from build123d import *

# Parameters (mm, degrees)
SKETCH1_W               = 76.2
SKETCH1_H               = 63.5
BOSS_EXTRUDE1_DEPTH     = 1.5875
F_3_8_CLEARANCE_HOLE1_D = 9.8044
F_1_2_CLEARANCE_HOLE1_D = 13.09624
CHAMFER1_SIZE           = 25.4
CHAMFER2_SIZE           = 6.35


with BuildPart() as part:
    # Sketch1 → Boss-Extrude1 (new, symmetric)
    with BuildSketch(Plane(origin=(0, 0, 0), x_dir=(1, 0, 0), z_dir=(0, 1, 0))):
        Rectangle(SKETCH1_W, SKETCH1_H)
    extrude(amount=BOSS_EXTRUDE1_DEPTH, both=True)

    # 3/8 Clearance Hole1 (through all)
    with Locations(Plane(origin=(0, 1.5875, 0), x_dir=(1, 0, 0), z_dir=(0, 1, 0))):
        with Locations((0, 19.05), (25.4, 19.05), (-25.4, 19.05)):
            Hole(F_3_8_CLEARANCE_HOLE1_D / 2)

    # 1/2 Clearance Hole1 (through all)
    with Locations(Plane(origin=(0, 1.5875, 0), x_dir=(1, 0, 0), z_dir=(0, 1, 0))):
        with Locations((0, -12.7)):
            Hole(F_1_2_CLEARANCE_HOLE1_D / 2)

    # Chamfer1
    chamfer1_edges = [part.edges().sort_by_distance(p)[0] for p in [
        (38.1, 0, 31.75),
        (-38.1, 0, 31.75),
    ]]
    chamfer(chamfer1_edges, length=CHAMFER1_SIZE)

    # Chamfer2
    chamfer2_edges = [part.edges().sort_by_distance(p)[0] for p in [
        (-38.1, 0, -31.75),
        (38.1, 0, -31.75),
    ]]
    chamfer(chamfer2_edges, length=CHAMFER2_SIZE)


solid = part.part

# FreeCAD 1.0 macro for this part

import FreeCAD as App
import Part
import Sketcher

V = App.Vector
Q = App.Units.Quantity


def edges_at(feature, points):
    """Names of the edges that pass closest to the given points."""
    edges = feature.Shape.Edges
    near = lambda p: min(range(len(edges)), key=lambda i: edges[i].distToShape(Part.Vertex(*p))[0])
    return sorted({f"Edge{near(p) + 1}" for p in points})

doc = App.newDocument("Part")
body = doc.addObject("PartDesign::Body", "Body")

# Sketch on XZ plane
sketch1 = body.newObject("Sketcher::SketchObject", "Sketch")
sketch1.AttachmentSupport = (doc.getObject("XZ_Plane"), [""])
sketch1.MapMode = "FlatFace"
sketch1.addGeometry([
    Part.LineSegment(V(-38, -32, 0), V(-38, 32, 0)),
    Part.LineSegment(V(-38, 32, 0), V(38, 32, 0)),
    Part.LineSegment(V(38, 32, 0), V(38, -32, 0)),
    Part.LineSegment(V(38, -32, 0), V(-38, -32, 0)),
], False)
sketch1.addConstraint([
    Sketcher.Constraint("Coincident", 0, 2, 1, 1),
    Sketcher.Constraint("Coincident", 1, 2, 2, 1),
    Sketcher.Constraint("Coincident", 2, 2, 3, 1),
    Sketcher.Constraint("Coincident", 3, 2, 0, 1),
    Sketcher.Constraint("Vertical", 0),
    Sketcher.Constraint("Horizontal", 1),
    Sketcher.Constraint("Vertical", 2),
    Sketcher.Constraint("Horizontal", 3),
    Sketcher.Constraint("Symmetric", 0, 2, 2, 2, -1, 1),
    Sketcher.Constraint("DistanceX", 1, 1, 1, 2, Q("3 in")),
    Sketcher.Constraint("DistanceY", 0, 1, 0, 2, Q("2.5 in")),
])
pad1 = body.newObject("PartDesign::Pad", "Pad")
pad1.Profile = sketch1
pad1.Length = Q("0.125 in")
pad1.Midplane = True

# Sketch on XZ plane
sketch2 = body.newObject("Sketcher::SketchObject", "Sketch001")
sketch2.AttachmentSupport = (doc.getObject("XZ_Plane"), [""])
sketch2.MapMode = "FlatFace"
sketch2.AttachmentOffset = App.Placement(V(0, 0, -0.0625 * 25.4), App.Rotation())
sketch2.addGeometry([
    Part.Circle(V(0, -19.1, 0), V(0, 0, 1), 4.9),
    Part.Circle(V(25.4, -19.1, 0), V(0, 0, 1), 4.9),
    Part.Circle(V(-25.4, -19.1, 0), V(0, 0, 1), 4.9),
], False)
sketch2.addConstraint([
    Sketcher.Constraint("Equal", 0, 1),
    Sketcher.Constraint("Equal", 1, 2),
    Sketcher.Constraint("Symmetric", 1, 3, 2, 3, -2),
    Sketcher.Constraint("PointOnObject", 0, 3, -2),
    Sketcher.Constraint("Horizontal", 0, 3, 1, 3),
    Sketcher.Constraint("Diameter", 0, Q("0.386 in")),
    Sketcher.Constraint("DistanceX", -1, 1, 1, 3, Q("1 in")),
    Sketcher.Constraint("DistanceY", 0, 3, -1, 1, Q("0.75 in")),
])
doc.recompute()
hole = body.newObject("PartDesign::Hole", "Hole")
hole.Profile = sketch2
hole.ThreadType = "None"
hole.Diameter = Q("0.386 in")
hole.DepthType = "ThroughAll"
hole.Reversed = True

# Sketch on XZ plane
sketch3 = body.newObject("Sketcher::SketchObject", "Sketch002")
sketch3.AttachmentSupport = (doc.getObject("XZ_Plane"), [""])
sketch3.MapMode = "FlatFace"
sketch3.AttachmentOffset = App.Placement(V(0, 0, -0.0625 * 25.4), App.Rotation())
sketch3.addGeometry(Part.Circle(V(0, 13, 0), V(0, 0, 1), 7), False)
sketch3.addConstraint([
    Sketcher.Constraint("PointOnObject", 0, 3, -2),
    Sketcher.Constraint("Diameter", 0, Q("0.5156 in")),
    Sketcher.Constraint("DistanceY", -1, 1, 0, 3, Q("0.5 in")),
])
doc.recompute()
hole2 = body.newObject("PartDesign::Hole", "Hole001")
hole2.Profile = sketch3
hole2.ThreadType = "None"
hole2.Diameter = Q("0.5156 in")
hole2.DepthType = "ThroughAll"
hole2.Reversed = True
doc.recompute()

chamfer = body.newObject("PartDesign::Chamfer", "Chamfer")
chamfer.Base = (hole2, edges_at(hole2, [(38.1, 0, 31.75), (-38.1, 0, 31.75)]))
chamfer.Size = Q("1 in")
doc.recompute()

chamfer2 = body.newObject("PartDesign::Chamfer", "Chamfer001")
chamfer2.Base = (chamfer, edges_at(chamfer, [(-38.1, 0, -31.75), (38.1, 0, -31.75)]))
chamfer2.Size = Q("0.25 in")

doc.recompute()
